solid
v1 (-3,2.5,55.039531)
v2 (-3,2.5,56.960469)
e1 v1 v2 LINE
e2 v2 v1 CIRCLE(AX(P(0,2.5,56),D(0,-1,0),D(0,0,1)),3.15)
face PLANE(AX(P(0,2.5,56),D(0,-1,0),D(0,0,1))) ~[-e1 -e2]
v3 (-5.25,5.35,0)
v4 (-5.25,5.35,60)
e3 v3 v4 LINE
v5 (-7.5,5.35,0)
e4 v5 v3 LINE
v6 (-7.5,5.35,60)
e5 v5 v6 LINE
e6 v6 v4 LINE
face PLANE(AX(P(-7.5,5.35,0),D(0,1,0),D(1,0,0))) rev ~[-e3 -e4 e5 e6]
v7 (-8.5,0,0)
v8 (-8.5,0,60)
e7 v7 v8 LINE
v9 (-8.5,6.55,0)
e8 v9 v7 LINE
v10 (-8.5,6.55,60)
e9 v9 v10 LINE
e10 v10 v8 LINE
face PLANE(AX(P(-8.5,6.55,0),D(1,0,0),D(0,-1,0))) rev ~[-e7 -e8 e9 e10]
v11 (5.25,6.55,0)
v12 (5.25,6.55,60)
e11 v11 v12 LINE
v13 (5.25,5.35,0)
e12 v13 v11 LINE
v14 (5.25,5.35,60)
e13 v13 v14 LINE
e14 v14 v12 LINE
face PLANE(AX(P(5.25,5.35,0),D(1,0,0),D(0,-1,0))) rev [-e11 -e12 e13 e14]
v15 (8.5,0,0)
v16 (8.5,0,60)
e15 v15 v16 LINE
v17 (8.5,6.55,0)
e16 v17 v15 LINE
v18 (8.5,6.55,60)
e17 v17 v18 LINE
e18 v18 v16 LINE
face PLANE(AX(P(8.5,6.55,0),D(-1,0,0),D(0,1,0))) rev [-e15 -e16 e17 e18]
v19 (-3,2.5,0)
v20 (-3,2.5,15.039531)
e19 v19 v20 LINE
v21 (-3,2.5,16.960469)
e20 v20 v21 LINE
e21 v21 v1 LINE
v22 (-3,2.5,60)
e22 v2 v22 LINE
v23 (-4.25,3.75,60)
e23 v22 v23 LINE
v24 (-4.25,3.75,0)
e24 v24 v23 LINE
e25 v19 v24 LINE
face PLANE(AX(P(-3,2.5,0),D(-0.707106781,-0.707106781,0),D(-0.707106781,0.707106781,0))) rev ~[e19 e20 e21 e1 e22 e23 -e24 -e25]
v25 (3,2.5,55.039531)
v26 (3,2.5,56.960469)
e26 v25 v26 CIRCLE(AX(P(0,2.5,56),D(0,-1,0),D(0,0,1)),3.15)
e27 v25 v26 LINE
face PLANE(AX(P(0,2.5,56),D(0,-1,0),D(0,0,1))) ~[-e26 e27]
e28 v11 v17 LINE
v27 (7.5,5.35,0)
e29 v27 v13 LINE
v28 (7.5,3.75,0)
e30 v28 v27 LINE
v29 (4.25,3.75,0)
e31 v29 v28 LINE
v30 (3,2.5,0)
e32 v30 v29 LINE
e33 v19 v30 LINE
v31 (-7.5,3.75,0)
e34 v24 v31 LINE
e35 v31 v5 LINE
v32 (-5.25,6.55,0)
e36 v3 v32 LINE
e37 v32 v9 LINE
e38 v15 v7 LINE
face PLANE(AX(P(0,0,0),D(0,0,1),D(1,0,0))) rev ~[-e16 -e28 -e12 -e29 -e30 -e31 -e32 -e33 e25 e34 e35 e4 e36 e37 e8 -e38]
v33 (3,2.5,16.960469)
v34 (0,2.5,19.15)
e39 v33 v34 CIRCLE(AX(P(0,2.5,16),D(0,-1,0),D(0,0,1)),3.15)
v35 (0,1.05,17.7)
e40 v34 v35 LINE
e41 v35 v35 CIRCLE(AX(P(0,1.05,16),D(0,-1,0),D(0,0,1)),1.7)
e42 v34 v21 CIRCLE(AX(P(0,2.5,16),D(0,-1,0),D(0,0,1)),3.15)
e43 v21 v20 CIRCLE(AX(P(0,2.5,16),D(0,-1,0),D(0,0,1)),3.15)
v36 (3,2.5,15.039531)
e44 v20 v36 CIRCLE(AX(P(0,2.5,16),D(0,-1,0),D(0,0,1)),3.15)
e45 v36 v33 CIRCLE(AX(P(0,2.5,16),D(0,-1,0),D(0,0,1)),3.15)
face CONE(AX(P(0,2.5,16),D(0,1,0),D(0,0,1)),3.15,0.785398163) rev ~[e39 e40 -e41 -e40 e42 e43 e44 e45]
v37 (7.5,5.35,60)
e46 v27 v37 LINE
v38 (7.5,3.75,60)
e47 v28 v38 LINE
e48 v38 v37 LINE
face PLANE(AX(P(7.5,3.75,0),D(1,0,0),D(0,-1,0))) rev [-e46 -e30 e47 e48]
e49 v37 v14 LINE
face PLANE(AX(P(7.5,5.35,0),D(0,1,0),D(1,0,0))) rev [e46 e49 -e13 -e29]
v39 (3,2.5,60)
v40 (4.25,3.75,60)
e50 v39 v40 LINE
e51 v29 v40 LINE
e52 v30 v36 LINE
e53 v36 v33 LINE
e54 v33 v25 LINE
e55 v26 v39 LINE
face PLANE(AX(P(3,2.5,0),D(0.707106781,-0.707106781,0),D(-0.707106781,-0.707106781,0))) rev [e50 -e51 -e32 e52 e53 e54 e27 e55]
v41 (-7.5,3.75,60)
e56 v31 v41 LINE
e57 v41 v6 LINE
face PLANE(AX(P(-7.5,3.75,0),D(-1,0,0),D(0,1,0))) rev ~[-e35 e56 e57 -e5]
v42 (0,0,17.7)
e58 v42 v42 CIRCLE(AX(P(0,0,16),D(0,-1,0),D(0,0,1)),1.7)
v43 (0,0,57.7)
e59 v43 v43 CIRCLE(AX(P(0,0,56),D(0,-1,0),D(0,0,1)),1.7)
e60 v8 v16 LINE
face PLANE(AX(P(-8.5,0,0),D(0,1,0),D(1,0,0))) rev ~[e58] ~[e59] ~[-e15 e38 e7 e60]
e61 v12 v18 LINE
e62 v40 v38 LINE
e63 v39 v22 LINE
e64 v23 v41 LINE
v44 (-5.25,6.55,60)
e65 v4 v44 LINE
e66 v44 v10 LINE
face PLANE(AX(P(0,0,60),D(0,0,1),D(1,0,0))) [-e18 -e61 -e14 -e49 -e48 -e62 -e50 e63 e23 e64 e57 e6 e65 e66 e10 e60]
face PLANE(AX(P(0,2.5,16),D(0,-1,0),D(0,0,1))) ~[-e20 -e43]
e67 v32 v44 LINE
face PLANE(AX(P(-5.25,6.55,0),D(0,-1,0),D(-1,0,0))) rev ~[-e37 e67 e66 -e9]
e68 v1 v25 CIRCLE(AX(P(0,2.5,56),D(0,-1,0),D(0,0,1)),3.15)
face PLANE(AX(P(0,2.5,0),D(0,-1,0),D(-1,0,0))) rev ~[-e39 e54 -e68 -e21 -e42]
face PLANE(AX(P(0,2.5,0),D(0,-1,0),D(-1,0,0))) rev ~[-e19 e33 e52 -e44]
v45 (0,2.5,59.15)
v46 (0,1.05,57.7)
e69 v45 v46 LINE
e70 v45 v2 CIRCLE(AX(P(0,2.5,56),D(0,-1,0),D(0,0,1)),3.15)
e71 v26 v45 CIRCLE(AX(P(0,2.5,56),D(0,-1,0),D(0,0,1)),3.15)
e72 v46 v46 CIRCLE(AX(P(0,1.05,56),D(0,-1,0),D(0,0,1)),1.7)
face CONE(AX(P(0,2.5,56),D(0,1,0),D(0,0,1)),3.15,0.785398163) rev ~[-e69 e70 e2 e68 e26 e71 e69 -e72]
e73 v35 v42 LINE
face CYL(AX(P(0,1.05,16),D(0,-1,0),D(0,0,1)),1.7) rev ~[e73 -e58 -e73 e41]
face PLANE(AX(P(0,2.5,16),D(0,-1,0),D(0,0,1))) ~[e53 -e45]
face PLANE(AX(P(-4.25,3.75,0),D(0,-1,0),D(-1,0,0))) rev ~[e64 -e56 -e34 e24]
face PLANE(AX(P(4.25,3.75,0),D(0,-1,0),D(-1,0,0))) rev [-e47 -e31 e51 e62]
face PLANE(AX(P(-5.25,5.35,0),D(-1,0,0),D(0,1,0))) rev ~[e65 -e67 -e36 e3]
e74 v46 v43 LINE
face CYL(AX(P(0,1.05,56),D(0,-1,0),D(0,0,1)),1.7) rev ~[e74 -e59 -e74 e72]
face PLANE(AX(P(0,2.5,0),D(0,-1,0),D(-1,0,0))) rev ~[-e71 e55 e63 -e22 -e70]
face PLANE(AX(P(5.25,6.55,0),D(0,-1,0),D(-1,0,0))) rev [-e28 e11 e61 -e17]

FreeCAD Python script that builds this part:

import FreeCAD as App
import Part
import Sketcher
Q = App.Units.Quantity

doc = App.newDocument("Part")
body = doc.addObject("PartDesign::Body", "Body")

sketch1 = doc.addObject("Sketcher::SketchObject", "Sketch")
body.addObject(sketch1)
sketch1.AttachmentSupport = (doc.XY_Plane, [""])
sketch1.MapMode = "FlatFace"
sketch1.addGeometry(Part.LineSegment(App.Vector(-7.5, 3.8, 0), App.Vector(-7.5, 5.3, 0)), False)
sketch1.addGeometry(Part.LineSegment(App.Vector(-7.5, 5.3, 0), App.Vector(-5.2, 5.3, 0)), False)
sketch1.addGeometry(Part.LineSegment(App.Vector(-5.2, 5.3, 0), App.Vector(-5.2, 6.5, 0)), False)
sketch1.addGeometry(Part.LineSegment(App.Vector(-5.2, 6.5, 0), App.Vector(-8.5, 6.5, 0)), False)
sketch1.addGeometry(Part.LineSegment(App.Vector(-8.5, 6.5, 0), App.Vector(-8.5, 0, 0)), False)
sketch1.addGeometry(Part.LineSegment(App.Vector(-8.5, 0, 0), App.Vector(0, 0, 0)), False)
sketch1.addGeometry(Part.LineSegment(App.Vector(0, 0, 0), App.Vector(0, 2.5, 0)), False)
sketch1.addGeometry(Part.LineSegment(App.Vector(0, 2.5, 0), App.Vector(-3, 2.5, 0)), False)
sketch1.addGeometry(Part.LineSegment(App.Vector(-3, 2.5, 0), App.Vector(-4.2, 3.8, 0)), False)
sketch1.addGeometry(Part.LineSegment(App.Vector(-4.2, 3.8, 0), App.Vector(-7.5, 3.8, 0)), False)
sketch1.addConstraint(Sketcher.Constraint("Coincident", 0, 2, 1, 1))
sketch1.addConstraint(Sketcher.Constraint("Coincident", 1, 2, 2, 1))
sketch1.addConstraint(Sketcher.Constraint("Coincident", 2, 2, 3, 1))
sketch1.addConstraint(Sketcher.Constraint("Coincident", 3, 2, 4, 1))
sketch1.addConstraint(Sketcher.Constraint("Coincident", 4, 2, 5, 1))
sketch1.addConstraint(Sketcher.Constraint("Coincident", 5, 2, 6, 1))
sketch1.addConstraint(Sketcher.Constraint("Coincident", 6, 2, 7, 1))
sketch1.addConstraint(Sketcher.Constraint("Coincident", 7, 2, 8, 1))
sketch1.addConstraint(Sketcher.Constraint("Coincident", 8, 2, 9, 1))
sketch1.addConstraint(Sketcher.Constraint("Coincident", 9, 2, 0, 1))
sketch1.addConstraint(Sketcher.Constraint("Vertical", 0))
sketch1.addConstraint(Sketcher.Constraint("Horizontal", 1))
sketch1.addConstraint(Sketcher.Constraint("Vertical", 2))
sketch1.addConstraint(Sketcher.Constraint("Horizontal", 3))
sketch1.addConstraint(Sketcher.Constraint("Vertical", 4))
sketch1.addConstraint(Sketcher.Constraint("Horizontal", 5))
sketch1.addConstraint(Sketcher.Constraint("Vertical", 6))
sketch1.addConstraint(Sketcher.Constraint("Horizontal", 7))
sketch1.addConstraint(Sketcher.Constraint("Horizontal", 9))
sketch1.addConstraint(Sketcher.Constraint("Coincident", 5, 2, -1, 1))
sketch1.addConstraint(Sketcher.Constraint("Equal", 3, 9))
sketch1.addConstraint(Sketcher.Constraint("DistanceX", 7, 2, 7, 1, Q("3 mm")))
sketch1.addConstraint(Sketcher.Constraint("Angle", 8, Q("135 deg")))
sketch1.addConstraint(Sketcher.Constraint("DistanceX", 5, 1, 5, 2, Q("8.5 mm")))
sketch1.addConstraint(Sketcher.Constraint("DistanceY", 0, 1, 0, 2, Q("1.6 mm")))
sketch1.addConstraint(Sketcher.Constraint("DistanceY", 2, 1, 2, 2, Q("1.2 mm")))
sketch1.addConstraint(Sketcher.Constraint("DistanceY", 6, 1, 6, 2, Q("2.5 mm")))
sketch1.addConstraint(Sketcher.Constraint("DistanceY", 4, 2, 4, 1, Q("6.55 mm")))
sketch1.addConstraint(Sketcher.Constraint("DistanceX", 0, 2, -1, 1, Q("7.5 mm")))
pad1 = doc.addObject("PartDesign::Pad", "Pad")
body.addObject(pad1)
pad1.Profile = sketch1
pad1.Length = 60
doc.recompute()

mirrored = doc.addObject("PartDesign::Mirrored", "Mirrored")
body.addObject(mirrored)
mirrored.Originals = [pad1]
mirrored.MirrorPlane = (doc.YZ_Plane, [""])
body.Tip = mirrored

sketch2 = doc.addObject("Sketcher::SketchObject", "Sketch001")
body.addObject(sketch2)
sketch2.AttachmentSupport = (doc.XZ_Plane, [""])
sketch2.MapMode = "FlatFace"
sketch2.AttachmentOffset = App.Placement(App.Vector(0, 0, -2.5), App.Rotation())
sketch2.addGeometry(Part.Circle(App.Vector(0, 56, 0), App.Vector(0, 0, 1), 1.7), False)
sketch2.addGeometry(Part.Circle(App.Vector(0, 16, 0), App.Vector(0, 0, 1), 1.7), False)
sketch2.addConstraint(Sketcher.Constraint("Equal", 0, 1))
sketch2.addConstraint(Sketcher.Constraint("PointOnObject", 0, 3, -2))
sketch2.addConstraint(Sketcher.Constraint("PointOnObject", 1, 3, -2))
sketch2.addConstraint(Sketcher.Constraint("Diameter", 0, Q("3.4 mm")))
sketch2.addConstraint(Sketcher.Constraint("DistanceY", -1, 1, 0, 3, Q("56 mm")))
sketch2.addConstraint(Sketcher.Constraint("DistanceY", -1, 1, 1, 3, Q("16 mm")))
doc.recompute()
hole = doc.addObject("PartDesign::Hole", "Hole")
body.addObject(hole)
hole.Profile = sketch2
hole.ThreadType = "None"
hole.Diameter = 3.4
hole.DepthType = "Dimension"
hole.Depth = 2.5
hole.DrillPoint = "Flat"
hole.HoleCutType = "Countersink"
hole.HoleCutDiameter = 6.3
hole.HoleCutCountersinkAngle = 90
hole.Reversed = True

doc.recompute()
